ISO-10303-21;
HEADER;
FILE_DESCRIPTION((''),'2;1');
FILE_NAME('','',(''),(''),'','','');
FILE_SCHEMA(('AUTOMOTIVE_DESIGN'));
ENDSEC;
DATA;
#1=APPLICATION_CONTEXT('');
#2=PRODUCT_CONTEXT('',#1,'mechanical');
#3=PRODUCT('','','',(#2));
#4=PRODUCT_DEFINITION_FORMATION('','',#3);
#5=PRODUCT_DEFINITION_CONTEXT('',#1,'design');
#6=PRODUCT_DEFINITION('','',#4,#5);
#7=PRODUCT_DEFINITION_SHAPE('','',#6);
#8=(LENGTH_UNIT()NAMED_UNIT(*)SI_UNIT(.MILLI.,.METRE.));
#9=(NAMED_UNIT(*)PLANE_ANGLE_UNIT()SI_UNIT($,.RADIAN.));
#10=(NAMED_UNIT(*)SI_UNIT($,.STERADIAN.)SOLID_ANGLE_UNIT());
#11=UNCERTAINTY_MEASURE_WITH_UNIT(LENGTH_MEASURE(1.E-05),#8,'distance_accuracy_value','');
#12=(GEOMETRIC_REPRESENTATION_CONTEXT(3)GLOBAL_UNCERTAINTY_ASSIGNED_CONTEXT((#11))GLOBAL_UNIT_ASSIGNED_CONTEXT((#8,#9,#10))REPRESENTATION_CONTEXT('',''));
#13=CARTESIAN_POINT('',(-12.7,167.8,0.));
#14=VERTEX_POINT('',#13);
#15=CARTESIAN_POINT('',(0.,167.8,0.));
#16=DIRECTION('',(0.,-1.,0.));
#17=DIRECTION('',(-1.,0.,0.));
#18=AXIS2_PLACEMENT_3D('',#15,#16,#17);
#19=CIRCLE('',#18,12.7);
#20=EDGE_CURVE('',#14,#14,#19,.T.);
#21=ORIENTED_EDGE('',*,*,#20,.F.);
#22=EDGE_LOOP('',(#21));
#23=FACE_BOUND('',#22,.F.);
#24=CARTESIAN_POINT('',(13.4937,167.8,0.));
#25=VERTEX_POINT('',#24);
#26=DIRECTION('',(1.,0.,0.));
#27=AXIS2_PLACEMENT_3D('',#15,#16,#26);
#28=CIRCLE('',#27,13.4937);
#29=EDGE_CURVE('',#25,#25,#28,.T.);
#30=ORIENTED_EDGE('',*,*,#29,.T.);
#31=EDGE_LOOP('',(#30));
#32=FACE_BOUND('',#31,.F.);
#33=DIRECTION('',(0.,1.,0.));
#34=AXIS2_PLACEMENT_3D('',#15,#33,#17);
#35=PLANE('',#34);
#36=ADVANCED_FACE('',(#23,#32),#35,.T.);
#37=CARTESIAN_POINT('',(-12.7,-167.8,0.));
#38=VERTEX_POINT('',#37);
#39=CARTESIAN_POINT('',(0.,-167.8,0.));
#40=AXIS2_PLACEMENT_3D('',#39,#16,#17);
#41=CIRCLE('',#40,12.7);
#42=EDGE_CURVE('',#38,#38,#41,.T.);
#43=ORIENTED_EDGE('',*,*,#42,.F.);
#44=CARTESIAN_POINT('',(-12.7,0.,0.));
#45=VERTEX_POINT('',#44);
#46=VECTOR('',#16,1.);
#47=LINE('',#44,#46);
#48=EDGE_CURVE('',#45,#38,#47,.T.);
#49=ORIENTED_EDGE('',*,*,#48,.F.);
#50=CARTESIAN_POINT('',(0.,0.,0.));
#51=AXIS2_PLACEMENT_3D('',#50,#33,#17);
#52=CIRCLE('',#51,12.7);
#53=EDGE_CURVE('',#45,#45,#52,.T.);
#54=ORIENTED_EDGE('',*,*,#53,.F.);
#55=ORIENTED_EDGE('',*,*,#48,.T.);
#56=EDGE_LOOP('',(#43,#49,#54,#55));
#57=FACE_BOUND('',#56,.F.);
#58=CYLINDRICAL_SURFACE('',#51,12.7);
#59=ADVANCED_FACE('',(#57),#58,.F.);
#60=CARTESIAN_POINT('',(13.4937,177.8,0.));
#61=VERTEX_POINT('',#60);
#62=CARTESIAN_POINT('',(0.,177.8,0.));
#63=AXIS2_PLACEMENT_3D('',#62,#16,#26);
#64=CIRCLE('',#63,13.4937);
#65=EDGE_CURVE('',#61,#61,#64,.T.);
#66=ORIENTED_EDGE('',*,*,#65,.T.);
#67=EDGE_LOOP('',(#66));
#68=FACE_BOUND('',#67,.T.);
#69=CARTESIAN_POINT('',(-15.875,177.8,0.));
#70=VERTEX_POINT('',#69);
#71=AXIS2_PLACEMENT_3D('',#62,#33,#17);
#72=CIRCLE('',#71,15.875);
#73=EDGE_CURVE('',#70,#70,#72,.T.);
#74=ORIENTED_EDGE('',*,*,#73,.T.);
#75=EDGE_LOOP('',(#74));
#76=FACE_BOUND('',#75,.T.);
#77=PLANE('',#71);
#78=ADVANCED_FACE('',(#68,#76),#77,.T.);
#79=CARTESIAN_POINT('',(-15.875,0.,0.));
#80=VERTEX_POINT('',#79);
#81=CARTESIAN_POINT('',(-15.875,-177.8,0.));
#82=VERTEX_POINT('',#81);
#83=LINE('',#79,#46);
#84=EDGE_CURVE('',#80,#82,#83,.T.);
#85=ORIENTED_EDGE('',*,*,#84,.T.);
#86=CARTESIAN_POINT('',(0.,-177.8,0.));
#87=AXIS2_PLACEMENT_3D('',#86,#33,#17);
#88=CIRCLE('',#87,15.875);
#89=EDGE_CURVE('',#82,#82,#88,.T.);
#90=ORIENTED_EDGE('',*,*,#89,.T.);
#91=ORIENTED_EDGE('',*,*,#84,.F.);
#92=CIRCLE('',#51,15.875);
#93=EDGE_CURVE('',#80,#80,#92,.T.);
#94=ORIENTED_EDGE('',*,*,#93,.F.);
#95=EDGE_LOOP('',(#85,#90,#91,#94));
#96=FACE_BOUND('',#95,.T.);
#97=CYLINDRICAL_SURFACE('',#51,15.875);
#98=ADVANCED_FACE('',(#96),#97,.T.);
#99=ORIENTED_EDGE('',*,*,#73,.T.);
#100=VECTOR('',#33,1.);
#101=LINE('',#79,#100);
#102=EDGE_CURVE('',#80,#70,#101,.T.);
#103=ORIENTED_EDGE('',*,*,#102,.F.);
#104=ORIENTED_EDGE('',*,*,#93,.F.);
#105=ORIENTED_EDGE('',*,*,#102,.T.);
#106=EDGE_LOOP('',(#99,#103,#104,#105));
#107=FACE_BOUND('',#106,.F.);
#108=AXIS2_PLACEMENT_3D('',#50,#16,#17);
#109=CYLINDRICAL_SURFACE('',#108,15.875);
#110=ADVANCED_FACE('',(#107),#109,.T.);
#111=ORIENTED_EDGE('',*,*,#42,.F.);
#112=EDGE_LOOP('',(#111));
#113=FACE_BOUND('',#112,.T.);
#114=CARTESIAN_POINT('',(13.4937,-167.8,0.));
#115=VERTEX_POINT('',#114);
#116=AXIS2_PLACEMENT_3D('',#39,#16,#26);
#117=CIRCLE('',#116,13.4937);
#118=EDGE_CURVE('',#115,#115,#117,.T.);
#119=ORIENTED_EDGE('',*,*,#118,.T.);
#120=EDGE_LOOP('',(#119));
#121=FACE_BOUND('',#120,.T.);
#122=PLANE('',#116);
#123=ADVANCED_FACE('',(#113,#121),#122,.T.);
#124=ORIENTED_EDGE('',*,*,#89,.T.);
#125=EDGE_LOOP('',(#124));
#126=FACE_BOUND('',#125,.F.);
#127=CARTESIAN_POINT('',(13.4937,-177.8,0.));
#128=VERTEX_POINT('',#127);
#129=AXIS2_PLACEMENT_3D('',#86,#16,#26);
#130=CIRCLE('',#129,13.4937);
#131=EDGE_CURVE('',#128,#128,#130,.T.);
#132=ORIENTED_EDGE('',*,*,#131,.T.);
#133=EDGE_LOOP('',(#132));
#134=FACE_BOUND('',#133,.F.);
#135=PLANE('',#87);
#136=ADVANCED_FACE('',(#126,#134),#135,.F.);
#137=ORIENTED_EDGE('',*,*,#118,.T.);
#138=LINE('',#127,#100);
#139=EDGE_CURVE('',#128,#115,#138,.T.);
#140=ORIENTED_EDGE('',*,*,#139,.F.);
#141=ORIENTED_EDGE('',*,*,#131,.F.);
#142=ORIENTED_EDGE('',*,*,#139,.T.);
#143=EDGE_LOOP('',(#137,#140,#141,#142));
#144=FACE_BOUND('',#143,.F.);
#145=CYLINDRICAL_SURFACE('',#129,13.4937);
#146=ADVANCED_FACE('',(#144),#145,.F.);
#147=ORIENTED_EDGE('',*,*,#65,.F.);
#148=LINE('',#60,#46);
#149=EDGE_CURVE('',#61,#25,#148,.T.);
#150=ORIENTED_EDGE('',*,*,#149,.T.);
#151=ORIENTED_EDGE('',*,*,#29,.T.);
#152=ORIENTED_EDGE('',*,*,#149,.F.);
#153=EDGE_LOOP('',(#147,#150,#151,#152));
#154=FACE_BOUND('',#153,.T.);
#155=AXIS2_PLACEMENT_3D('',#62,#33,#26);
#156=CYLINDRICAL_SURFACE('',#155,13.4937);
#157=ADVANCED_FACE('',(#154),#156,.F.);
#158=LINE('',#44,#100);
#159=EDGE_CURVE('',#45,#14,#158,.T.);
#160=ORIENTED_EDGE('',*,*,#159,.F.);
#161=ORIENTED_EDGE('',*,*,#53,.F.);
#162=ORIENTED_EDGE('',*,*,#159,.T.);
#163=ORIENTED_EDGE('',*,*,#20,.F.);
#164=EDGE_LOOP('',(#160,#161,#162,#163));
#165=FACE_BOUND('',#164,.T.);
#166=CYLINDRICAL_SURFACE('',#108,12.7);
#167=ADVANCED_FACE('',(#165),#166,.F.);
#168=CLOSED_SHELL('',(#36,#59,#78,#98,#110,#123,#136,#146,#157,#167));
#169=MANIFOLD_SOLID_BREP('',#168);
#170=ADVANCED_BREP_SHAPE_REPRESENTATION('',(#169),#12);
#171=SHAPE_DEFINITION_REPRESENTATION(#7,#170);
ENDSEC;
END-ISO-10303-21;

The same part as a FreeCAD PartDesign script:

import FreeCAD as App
import Part
import Sketcher
from FreeCAD import Vector
Q = App.Units.Quantity

doc = App.newDocument("Part")
body = doc.addObject("PartDesign::Body", "Body")

# Sketch on XZ plane
sketch1 = doc.addObject("Sketcher::SketchObject", "Sketch")
body.addObject(sketch1)
sketch1.AttachmentSupport = (doc.XZ_Plane, [""])
sketch1.MapMode = "FlatFace"
sketch1.addGeometry([
    Part.Circle(Vector(0, 0, 0), Vector(0, 0, 1), 16),
    Part.Circle(Vector(0, 0, 0), Vector(0, 0, 1), 13),
], False)
sketch1.addConstraint([
    Sketcher.Constraint("Coincident", 0, 3, -1, 1),
    Sketcher.Constraint("Coincident", 1, 3, -1, 1),
    Sketcher.Constraint("Diameter", 1, Q("1 in")),
    Sketcher.Constraint("Diameter", 0, Q("1.25 in")),
])
pad1 = doc.addObject("PartDesign::Pad", "Pad")
body.addObject(pad1)
pad1.Profile = sketch1
pad1.Length = Q("14 in")
pad1.Midplane = True

# Sketch on XZ plane
sketch2 = doc.addObject("Sketcher::SketchObject", "Sketch001")
body.addObject(sketch2)
sketch2.AttachmentSupport = (doc.XZ_Plane, [""])
sketch2.MapMode = "FlatFace"
sketch2.AttachmentOffset = App.Placement(Vector(0, 0, 7 * 25.4), App.Rotation())
sketch2.addGeometry([
    Part.Circle(Vector(0, 0, 0), Vector(0, 0, 1), 13),
    Part.Circle(Vector(0, 0, 0), Vector(0, 0, 1), 13),
], False)
sketch2.addConstraint([
    Sketcher.Constraint("Coincident", 0, 3, -1, 1),
    Sketcher.Constraint("Coincident", 1, 3, -1, 1),
    Sketcher.Constraint("Diameter", 0, Q("1.0625 in")),
    Sketcher.Constraint("Diameter", 1, Q("1 in")),
])
pocket1 = doc.addObject("PartDesign::Pocket", "Pocket")
body.addObject(pocket1)
pocket1.Profile = sketch2
pocket1.Length = Q("0.3937008 in")
doc.recompute()

mirrored = doc.addObject("PartDesign::Mirrored", "Mirrored")
body.addObject(mirrored)
mirrored.Originals = [pocket1]
mirrored.MirrorPlane = (doc.XZ_Plane, [""])
body.Tip = mirrored

doc.recompute()
